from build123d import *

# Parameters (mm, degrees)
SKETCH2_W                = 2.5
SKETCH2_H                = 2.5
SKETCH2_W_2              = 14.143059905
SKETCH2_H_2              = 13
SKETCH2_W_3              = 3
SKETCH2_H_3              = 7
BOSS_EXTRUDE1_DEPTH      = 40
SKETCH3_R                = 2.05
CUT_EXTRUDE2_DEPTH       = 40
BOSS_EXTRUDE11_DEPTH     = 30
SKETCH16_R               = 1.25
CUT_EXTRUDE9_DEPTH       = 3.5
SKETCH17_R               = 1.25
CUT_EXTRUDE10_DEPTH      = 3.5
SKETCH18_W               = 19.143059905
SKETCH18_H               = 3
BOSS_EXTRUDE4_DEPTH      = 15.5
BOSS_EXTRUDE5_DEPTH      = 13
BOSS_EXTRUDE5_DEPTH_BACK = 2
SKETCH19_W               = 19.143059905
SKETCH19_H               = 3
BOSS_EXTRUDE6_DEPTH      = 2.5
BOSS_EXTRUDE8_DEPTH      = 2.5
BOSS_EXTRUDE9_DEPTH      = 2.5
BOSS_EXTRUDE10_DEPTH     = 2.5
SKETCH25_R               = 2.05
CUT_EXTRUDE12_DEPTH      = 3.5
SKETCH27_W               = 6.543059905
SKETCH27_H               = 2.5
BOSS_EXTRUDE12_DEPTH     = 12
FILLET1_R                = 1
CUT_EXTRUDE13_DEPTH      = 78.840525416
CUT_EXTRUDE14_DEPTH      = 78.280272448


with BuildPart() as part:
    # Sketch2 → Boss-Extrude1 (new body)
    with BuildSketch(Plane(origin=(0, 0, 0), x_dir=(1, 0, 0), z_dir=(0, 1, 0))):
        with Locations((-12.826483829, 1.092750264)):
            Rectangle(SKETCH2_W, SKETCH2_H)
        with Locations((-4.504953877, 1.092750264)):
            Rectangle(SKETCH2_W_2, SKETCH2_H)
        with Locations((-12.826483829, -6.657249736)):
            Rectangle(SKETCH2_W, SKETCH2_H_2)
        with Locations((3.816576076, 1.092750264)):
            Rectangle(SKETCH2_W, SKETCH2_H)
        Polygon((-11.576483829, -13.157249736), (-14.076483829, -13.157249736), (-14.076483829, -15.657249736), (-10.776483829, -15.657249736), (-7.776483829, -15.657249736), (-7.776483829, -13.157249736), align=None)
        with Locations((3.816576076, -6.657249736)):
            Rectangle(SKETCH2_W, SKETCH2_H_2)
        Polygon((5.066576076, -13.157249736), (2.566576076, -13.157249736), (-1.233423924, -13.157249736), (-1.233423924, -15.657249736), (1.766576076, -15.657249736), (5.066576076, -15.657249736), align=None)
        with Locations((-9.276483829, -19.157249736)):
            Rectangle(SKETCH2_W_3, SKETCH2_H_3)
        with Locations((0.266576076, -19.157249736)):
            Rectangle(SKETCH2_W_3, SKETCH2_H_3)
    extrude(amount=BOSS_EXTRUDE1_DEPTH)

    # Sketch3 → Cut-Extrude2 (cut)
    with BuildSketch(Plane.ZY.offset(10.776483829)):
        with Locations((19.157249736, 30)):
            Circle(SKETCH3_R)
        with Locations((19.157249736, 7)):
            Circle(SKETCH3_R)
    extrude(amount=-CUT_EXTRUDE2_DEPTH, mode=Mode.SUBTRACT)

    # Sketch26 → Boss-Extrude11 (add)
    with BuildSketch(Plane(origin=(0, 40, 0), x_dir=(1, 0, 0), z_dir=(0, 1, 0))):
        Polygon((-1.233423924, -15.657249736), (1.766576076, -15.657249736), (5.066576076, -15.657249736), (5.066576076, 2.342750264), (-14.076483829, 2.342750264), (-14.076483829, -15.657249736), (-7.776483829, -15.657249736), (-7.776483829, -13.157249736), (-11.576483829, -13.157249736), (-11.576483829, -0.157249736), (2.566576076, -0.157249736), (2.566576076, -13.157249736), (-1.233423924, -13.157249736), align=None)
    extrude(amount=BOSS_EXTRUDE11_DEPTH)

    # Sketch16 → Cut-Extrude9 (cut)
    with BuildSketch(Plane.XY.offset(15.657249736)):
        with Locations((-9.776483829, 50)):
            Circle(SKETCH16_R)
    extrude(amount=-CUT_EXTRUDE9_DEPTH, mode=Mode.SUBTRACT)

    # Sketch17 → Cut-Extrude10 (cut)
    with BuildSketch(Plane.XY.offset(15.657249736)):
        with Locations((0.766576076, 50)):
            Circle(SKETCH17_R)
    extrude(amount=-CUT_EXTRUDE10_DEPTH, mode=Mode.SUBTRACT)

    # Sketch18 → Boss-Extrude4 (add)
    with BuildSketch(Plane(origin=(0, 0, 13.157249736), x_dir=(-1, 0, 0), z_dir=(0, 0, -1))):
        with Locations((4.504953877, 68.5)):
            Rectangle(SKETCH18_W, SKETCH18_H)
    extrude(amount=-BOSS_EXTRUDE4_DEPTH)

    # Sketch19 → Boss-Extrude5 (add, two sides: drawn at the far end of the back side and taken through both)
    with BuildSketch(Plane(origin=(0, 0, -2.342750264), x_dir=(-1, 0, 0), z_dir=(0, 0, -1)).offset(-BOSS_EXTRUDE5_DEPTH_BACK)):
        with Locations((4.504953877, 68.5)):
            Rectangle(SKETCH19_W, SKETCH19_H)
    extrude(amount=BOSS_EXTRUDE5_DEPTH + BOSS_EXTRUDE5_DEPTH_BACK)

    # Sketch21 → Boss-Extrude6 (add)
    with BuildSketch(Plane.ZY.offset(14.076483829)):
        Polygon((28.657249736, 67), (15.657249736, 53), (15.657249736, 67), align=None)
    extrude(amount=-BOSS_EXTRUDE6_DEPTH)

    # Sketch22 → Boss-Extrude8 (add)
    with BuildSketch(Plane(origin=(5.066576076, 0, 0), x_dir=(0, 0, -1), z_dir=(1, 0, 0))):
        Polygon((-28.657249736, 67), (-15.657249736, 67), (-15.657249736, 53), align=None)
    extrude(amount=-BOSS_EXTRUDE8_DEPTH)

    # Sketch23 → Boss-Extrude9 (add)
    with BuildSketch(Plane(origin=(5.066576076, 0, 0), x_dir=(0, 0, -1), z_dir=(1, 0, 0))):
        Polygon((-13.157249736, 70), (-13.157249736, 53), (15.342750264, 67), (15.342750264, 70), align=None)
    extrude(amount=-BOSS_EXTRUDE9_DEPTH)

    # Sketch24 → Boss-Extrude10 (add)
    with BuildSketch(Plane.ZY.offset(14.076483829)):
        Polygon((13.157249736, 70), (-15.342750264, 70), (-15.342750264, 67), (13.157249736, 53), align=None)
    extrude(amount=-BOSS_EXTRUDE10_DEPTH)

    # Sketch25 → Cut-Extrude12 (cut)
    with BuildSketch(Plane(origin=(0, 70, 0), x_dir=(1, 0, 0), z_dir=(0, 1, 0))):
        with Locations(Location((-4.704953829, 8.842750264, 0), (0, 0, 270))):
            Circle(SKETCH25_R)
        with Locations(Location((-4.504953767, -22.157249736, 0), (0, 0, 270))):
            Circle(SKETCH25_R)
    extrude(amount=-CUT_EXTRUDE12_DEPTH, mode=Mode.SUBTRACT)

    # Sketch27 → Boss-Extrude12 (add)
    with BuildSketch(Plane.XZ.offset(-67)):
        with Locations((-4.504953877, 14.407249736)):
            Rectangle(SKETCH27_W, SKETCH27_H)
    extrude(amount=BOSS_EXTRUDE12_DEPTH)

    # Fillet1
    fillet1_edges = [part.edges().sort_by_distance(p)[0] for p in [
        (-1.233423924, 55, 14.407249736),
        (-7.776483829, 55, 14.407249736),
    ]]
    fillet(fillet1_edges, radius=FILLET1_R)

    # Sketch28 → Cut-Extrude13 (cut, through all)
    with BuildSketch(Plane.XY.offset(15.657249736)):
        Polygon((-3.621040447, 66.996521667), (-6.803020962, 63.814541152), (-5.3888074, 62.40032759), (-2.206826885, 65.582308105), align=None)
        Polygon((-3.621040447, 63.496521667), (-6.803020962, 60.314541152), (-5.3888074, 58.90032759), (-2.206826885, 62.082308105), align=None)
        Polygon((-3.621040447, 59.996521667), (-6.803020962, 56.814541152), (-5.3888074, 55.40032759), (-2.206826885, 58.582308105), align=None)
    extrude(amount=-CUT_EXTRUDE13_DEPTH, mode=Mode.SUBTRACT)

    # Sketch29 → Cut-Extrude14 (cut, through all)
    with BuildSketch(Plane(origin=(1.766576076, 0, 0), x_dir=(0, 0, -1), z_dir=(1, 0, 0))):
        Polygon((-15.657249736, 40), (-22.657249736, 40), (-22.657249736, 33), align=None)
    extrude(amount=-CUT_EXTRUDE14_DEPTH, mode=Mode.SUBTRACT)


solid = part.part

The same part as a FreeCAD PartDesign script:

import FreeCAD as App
import Part
import Sketcher

V = App.Vector
Q = App.Units.Quantity


def edges_at(feature, points):
    """Names of the edges that pass closest to the given points."""
    edges = feature.Shape.Edges
    near = lambda p: min(range(len(edges)), key=lambda i: edges[i].distToShape(Part.Vertex(*p))[0])
    return sorted({f"Edge{near(p) + 1}" for p in points})


def add_polygon(sketch, points):
    """Adds a closed chain of lines whose ends are joined by coincident constraints."""
    first, n = sketch.GeometryCount, len(points)
    for a, b in zip(points, points[1:] + points[:1]):
        sketch.addGeometry(Part.LineSegment(App.Vector(*a, 0), App.Vector(*b, 0)), False)
    for i in range(n):
        sketch.addConstraint(Sketcher.Constraint("Coincident", first + i, 2, first + (i + 1) % n, 1))

doc = App.newDocument("Part")
body = doc.addObject("PartDesign::Body", "Body")

# Sketch on XZ plane
sketch1 = body.newObject("Sketcher::SketchObject", "Sketch")
sketch1.AttachmentSupport = (doc.getObject("XZ_Plane"), [""])
sketch1.MapMode = "FlatFace"
add_polygon(sketch1, [(-14.1, -2.3), (-14.1, 15.7), (-10.8, 15.7), (-10.8, 22.7), (-7.8, 22.7), (-7.8, 13.2), (-11.6, 13.2), (-11.6, 0.2), (2.6, 0.2), (2.6, 13.2), (-1.2, 13.2), (-1.2, 22.7), (1.8, 22.7), (1.8, 15.7), (5.1, 15.7), (5.1, -2.3)])  # lines 0-15
sketch1.addConstraint([
    Sketcher.Constraint("Vertical", 0),
    Sketcher.Constraint("Horizontal", 1),
    Sketcher.Constraint("Vertical", 2),
    Sketcher.Constraint("Horizontal", 3),
    Sketcher.Constraint("Vertical", 4),
    Sketcher.Constraint("Horizontal", 5),
    Sketcher.Constraint("Vertical", 6),
    Sketcher.Constraint("Horizontal", 7),
    Sketcher.Constraint("Vertical", 8),
    Sketcher.Constraint("Horizontal", 9),
    Sketcher.Constraint("Vertical", 10),
    Sketcher.Constraint("Horizontal", 11),
    Sketcher.Constraint("Vertical", 12),
    Sketcher.Constraint("Horizontal", 13),
    Sketcher.Constraint("Vertical", 14),
    Sketcher.Constraint("Horizontal", 15),
    Sketcher.Constraint("Horizontal", 5, 2, 8, 2),
    Sketcher.Constraint("Horizontal", 3, 2, 10, 2),
    Sketcher.Constraint("Horizontal", 1, 2, 12, 2),
    Sketcher.Constraint("Equal", 5, 9),
    Sketcher.Constraint("Equal", 3, 11),
    Sketcher.Constraint("Equal", 1, 13),
    Sketcher.Constraint("DistanceX", 3, 1, 3, 2, 3.0),
    Sketcher.Constraint("DistanceY", 0, 1, 0, 2, 18.0),
    Sketcher.Constraint("DistanceY", 2, 1, 2, 2, 7.0),
    Sketcher.Constraint("DistanceY", 6, 2, 6, 1, 13.0),
    Sketcher.Constraint("DistanceX", 1, 1, 1, 2, 3.3),
    Sketcher.Constraint("DistanceX", 5, 2, 5, 1, 3.8),
    Sketcher.Constraint("DistanceY", 4, 2, 4, 1, 9.5),
    Sketcher.Constraint("DistanceX", 7, 1, 7, 2, 14.14306),
    Sketcher.Constraint("DistanceY", -1, 1, 0, 2, 15.65725),
    Sketcher.Constraint("DistanceX", 0, 2, -1, 1, 14.076484),
])
pad1 = body.newObject("PartDesign::Pad", "Pad")
pad1.Profile = sketch1
pad1.Length = 40
pad1.Reversed = True

# Sketch on YZ plane
sketch2 = body.newObject("Sketcher::SketchObject", "Sketch001")
sketch2.AttachmentSupport = (doc.getObject("YZ_Plane"), [""])
sketch2.MapMode = "FlatFace"
sketch2.AttachmentOffset = App.Placement(V(0, 0, -10.776484), App.Rotation())
sketch2.addGeometry([
    Part.Circle(V(30, 19.2, 0), V(0, 0, 1), 2),
    Part.Circle(V(7, 19.2, 0), V(0, 0, 1), 2),
], False)
sketch2.addConstraint([
    Sketcher.Constraint("Equal", 0, 1),
    Sketcher.Constraint("Horizontal", 0, 3, 1, 3),
    Sketcher.Constraint("Diameter", 0, 4.1),
    Sketcher.Constraint("DistanceX", -1, 1, 0, 3, 30.0),
    Sketcher.Constraint("DistanceX", -1, 1, 1, 3, 7.0),
    Sketcher.Constraint("DistanceY", -1, 1, 0, 3, 19.15725),
])
pocket1 = body.newObject("PartDesign::Pocket", "Pocket")
pocket1.Profile = sketch2
pocket1.Length = 40
pocket1.Reversed = True

# Sketch on XZ plane
sketch3 = body.newObject("Sketcher::SketchObject", "Sketch002")
sketch3.AttachmentSupport = (doc.getObject("XZ_Plane"), [""])
sketch3.MapMode = "FlatFace"
sketch3.AttachmentOffset = App.Placement(V(0, 0, -40), App.Rotation())
add_polygon(sketch3, [(-1.2, 15.7), (5.1, 15.7), (5.1, -2.3), (-14.1, -2.3), (-14.1, 15.7), (-7.8, 15.7), (-7.8, 13.2), (-11.6, 13.2), (-11.6, 0.2), (2.6, 0.2), (2.6, 13.2), (-1.2, 13.2)])  # lines 0-11
sketch3.addConstraint([
    Sketcher.Constraint("Horizontal", 0),
    Sketcher.Constraint("Vertical", 1),
    Sketcher.Constraint("Horizontal", 2),
    Sketcher.Constraint("Vertical", 3),
    Sketcher.Constraint("Horizontal", 4),
    Sketcher.Constraint("Vertical", 5),
    Sketcher.Constraint("Horizontal", 6),
    Sketcher.Constraint("Vertical", 7),
    Sketcher.Constraint("Horizontal", 8),
    Sketcher.Constraint("Vertical", 9),
    Sketcher.Constraint("Horizontal", 10),
    Sketcher.Constraint("Vertical", 11),
    Sketcher.Constraint("Horizontal", 0, 2, 3, 2),
    Sketcher.Constraint("Horizontal", 6, 2, 9, 2),
    Sketcher.Constraint("Equal", 0, 4),
    Sketcher.Constraint("Equal", 6, 10),
    Sketcher.Constraint("DistanceY", 1, 2, 1, 1, 18.0),
    Sketcher.Constraint("DistanceY", 7, 2, 7, 1, 13.0),
    Sketcher.Constraint("DistanceX", 0, 1, 0, 2, 6.3),
    Sketcher.Constraint("DistanceX", 6, 2, 6, 1, 3.8),
    Sketcher.Constraint("DistanceY", 5, 2, 5, 1, 2.5),
    Sketcher.Constraint("DistanceX", 2, 2, 2, 1, 19.14306),
    Sketcher.Constraint("DistanceY", -1, 1, 0, 2, 15.65725),
    Sketcher.Constraint("DistanceX", -1, 1, 0, 2, 5.066576),
])
pad2 = body.newObject("PartDesign::Pad", "Pad001")
pad2.Profile = sketch3
pad2.Length = 30
pad2.Reversed = True

# Sketch on XY plane
sketch4 = body.newObject("Sketcher::SketchObject", "Sketch003")
sketch4.AttachmentSupport = (doc.getObject("XY_Plane"), [""])
sketch4.MapMode = "FlatFace"
sketch4.AttachmentOffset = App.Placement(V(0, 0, 15.65725), App.Rotation())
sketch4.addGeometry(Part.Circle(V(-9.8, 50, 0), V(0, 0, 1), 1.2), False)
sketch4.addConstraint([
    Sketcher.Constraint("Diameter", 0, 2.5),
    Sketcher.Constraint("DistanceY", -1, 1, 0, 3, 50.0),
    Sketcher.Constraint("DistanceX", 0, 3, -1, 1, 9.776484),
])
pocket2 = body.newObject("PartDesign::Pocket", "Pocket001")
pocket2.Profile = sketch4
pocket2.Length = 3.5

# Sketch on XY plane
sketch5 = body.newObject("Sketcher::SketchObject", "Sketch004")
sketch5.AttachmentSupport = (doc.getObject("XY_Plane"), [""])
sketch5.MapMode = "FlatFace"
sketch5.AttachmentOffset = App.Placement(V(0, 0, 15.65725), App.Rotation())
sketch5.addGeometry(Part.Circle(V(0.8, 50, 0), V(0, 0, 1), 1.2), False)
sketch5.addConstraint([
    Sketcher.Constraint("Diameter", 0, 2.5),
    Sketcher.Constraint("DistanceY", -1, 1, 0, 3, 50.0),
    Sketcher.Constraint("DistanceX", -1, 1, 0, 3, 0.766576),
])
pocket3 = body.newObject("PartDesign::Pocket", "Pocket002")
pocket3.Profile = sketch5
pocket3.Length = 3.5

# Sketch on XY plane
sketch6 = body.newObject("Sketcher::SketchObject", "Sketch005")
sketch6.AttachmentSupport = (doc.getObject("XY_Plane"), [""])
sketch6.MapMode = "FlatFace"
sketch6.AttachmentOffset = App.Placement(V(0, 0, 13.15725), App.Rotation())
add_polygon(sketch6, [(5.1, 70), (5.1, 67), (-14.1, 67), (-14.1, 70)])  # lines 0-3
sketch6.addConstraint([
    Sketcher.Constraint("Vertical", 0),
    Sketcher.Constraint("Horizontal", 1),
    Sketcher.Constraint("Vertical", 2),
    Sketcher.Constraint("Horizontal", 3),
    Sketcher.Constraint("DistanceY", 0, 2, 0, 1, 3.0),
    Sketcher.Constraint("DistanceY", -1, 1, 0, 2, 67.0),
    Sketcher.Constraint("DistanceX", 1, 2, 1, 1, 19.14306),
    Sketcher.Constraint("DistanceX", -1, 1, 0, 2, 5.066576),
])
pad3 = body.newObject("PartDesign::Pad", "Pad002")
pad3.Profile = sketch6
pad3.Length = 15.5

# Sketch on XY plane
sketch7 = body.newObject("Sketcher::SketchObject", "Sketch006")
sketch7.AttachmentSupport = (doc.getObject("XY_Plane"), [""])
sketch7.MapMode = "FlatFace"
sketch7.AttachmentOffset = App.Placement(V(0, 0, -2.34275), App.Rotation())
add_polygon(sketch7, [(5.1, 70), (5.1, 67), (-14.1, 67), (-14.1, 70)])  # lines 0-3
sketch7.addConstraint([
    Sketcher.Constraint("Vertical", 0),
    Sketcher.Constraint("Horizontal", 1),
    Sketcher.Constraint("Vertical", 2),
    Sketcher.Constraint("Horizontal", 3),
    Sketcher.Constraint("DistanceY", 0, 2, 0, 1, 3.0),
    Sketcher.Constraint("DistanceY", -1, 1, 0, 2, 67.0),
    Sketcher.Constraint("DistanceX", 1, 2, 1, 1, 19.14306),
    Sketcher.Constraint("DistanceX", -1, 1, 0, 2, 5.066576),
])
pad4 = body.newObject("PartDesign::Pad", "Pad003")
pad4.Profile = sketch7
pad4.Type = "TwoLengths"
pad4.Length = 13
pad4.Length2 = 2
pad4.Reversed = True

# Sketch on YZ plane
sketch8 = body.newObject("Sketcher::SketchObject", "Sketch007")
sketch8.AttachmentSupport = (doc.getObject("YZ_Plane"), [""])
sketch8.MapMode = "FlatFace"
sketch8.AttachmentOffset = App.Placement(V(0, 0, -14.076484), App.Rotation())
add_polygon(sketch8, [(53, 16), (67, 29), (67, 16)])  # lines 0-2
sketch8.addConstraint([
    Sketcher.Constraint("Vertical", 1),
    Sketcher.Constraint("Horizontal", 2),
    Sketcher.Constraint("DistanceX", 2, 2, 2, 1, 14.0),
    Sketcher.Constraint("DistanceY", 1, 2, 1, 1, 13.0),
    Sketcher.Constraint("DistanceX", -1, 1, 0, 2, 67.0),
    Sketcher.Constraint("DistanceY", -1, 1, 0, 2, 28.65725),
])
pad5 = body.newObject("PartDesign::Pad", "Pad004")
pad5.Profile = sketch8
pad5.Length = 2.5

# Sketch on YZ plane
sketch9 = body.newObject("Sketcher::SketchObject", "Sketch008")
sketch9.AttachmentSupport = (doc.getObject("YZ_Plane"), [""])
sketch9.MapMode = "FlatFace"
sketch9.AttachmentOffset = App.Placement(V(0, 0, 5.066576), App.Rotation())
add_polygon(sketch9, [(67, 16), (67, 29), (53, 16)])  # lines 0-2
sketch9.addConstraint([
    Sketcher.Constraint("Vertical", 0),
    Sketcher.Constraint("Horizontal", 2),
    Sketcher.Constraint("DistanceX", 2, 1, 2, 2, 14.0),
    Sketcher.Constraint("DistanceY", 0, 1, 0, 2, 13.0),
    Sketcher.Constraint("DistanceX", -1, 1, 0, 2, 67.0),
    Sketcher.Constraint("DistanceY", -1, 1, 0, 2, 28.65725),
])
pad6 = body.newObject("PartDesign::Pad", "Pad005")
pad6.Profile = sketch9
pad6.Length = 2.5
pad6.Reversed = True

# Sketch on YZ plane
sketch10 = body.newObject("Sketcher::SketchObject", "Sketch009")
sketch10.AttachmentSupport = (doc.getObject("YZ_Plane"), [""])
sketch10.MapMode = "FlatFace"
sketch10.AttachmentOffset = App.Placement(V(0, 0, 5.066576), App.Rotation())
add_polygon(sketch10, [(70, 13.2), (53, 13.2), (67, -15.3), (70, -15.3)])  # lines 0-3
sketch10.addConstraint([
    Sketcher.Constraint("Horizontal", 0),
    Sketcher.Constraint("Horizontal", 2),
    Sketcher.Constraint("Vertical", 3),
    Sketcher.Constraint("DistanceX", 0, 2, 0, 1, 17.0),
    Sketcher.Constraint("DistanceX", 2, 1, 2, 2, 3.0),
    Sketcher.Constraint("DistanceY", 3, 1, 3, 2, 28.5),
    Sketcher.Constraint("DistanceX", -1, 1, 0, 2, 53.0),
    Sketcher.Constraint("DistanceY", -1, 1, 0, 2, 13.15725),
])
pad7 = body.newObject("PartDesign::Pad", "Pad006")
pad7.Profile = sketch10
pad7.Length = 2.5
pad7.Reversed = True

# Sketch on YZ plane
sketch11 = body.newObject("Sketcher::SketchObject", "Sketch010")
sketch11.AttachmentSupport = (doc.getObject("YZ_Plane"), [""])
sketch11.MapMode = "FlatFace"
sketch11.AttachmentOffset = App.Placement(V(0, 0, -14.076484), App.Rotation())
add_polygon(sketch11, [(70, 13.2), (70, -15.3), (67, -15.3), (53, 13.2)])  # lines 0-3
sketch11.addConstraint([
    Sketcher.Constraint("Vertical", 0),
    Sketcher.Constraint("Horizontal", 1),
    Sketcher.Constraint("Horizontal", 3),
    Sketcher.Constraint("DistanceX", 1, 2, 1, 1, 3.0),
    Sketcher.Constraint("DistanceX", 3, 1, 3, 2, 17.0),
    Sketcher.Constraint("DistanceY", 0, 2, 0, 1, 28.5),
    Sketcher.Constraint("DistanceX", -1, 1, 0, 2, 70.0),
    Sketcher.Constraint("DistanceY", 0, 2, -1, 1, 15.34275),
])
pad8 = body.newObject("PartDesign::Pad", "Pad007")
pad8.Profile = sketch11
pad8.Length = 2.5

# Sketch on XZ plane
sketch12 = body.newObject("Sketcher::SketchObject", "Sketch011")
sketch12.AttachmentSupport = (doc.getObject("XZ_Plane"), [""])
sketch12.MapMode = "FlatFace"
sketch12.AttachmentOffset = App.Placement(V(0, 0, -70), App.Rotation())
sketch12.addGeometry([
    Part.Circle(V(-4.7, -8.8, 0), V(0, 0, 1), 2),
    Part.Circle(V(-4.5, 22.2, 0), V(0, 0, 1), 2),
], False)
sketch12.addConstraint([
    Sketcher.Constraint("Equal", 0, 1),
    Sketcher.Constraint("Diameter", 0, 4.1),
    Sketcher.Constraint("DistanceY", 0, 3, 1, 3, 31.0),
    Sketcher.Constraint("DistanceX", 0, 3, 1, 3, 0.2),
    Sketcher.Constraint("DistanceY", 0, 3, -1, 1, 8.84275),
    Sketcher.Constraint("DistanceX", 0, 3, -1, 1, 4.704954),
])
pocket4 = body.newObject("PartDesign::Pocket", "Pocket003")
pocket4.Profile = sketch12
pocket4.Length = 3.5
pocket4.Reversed = True

# Sketch on XZ plane
sketch13 = body.newObject("Sketcher::SketchObject", "Sketch012")
sketch13.AttachmentSupport = (doc.getObject("XZ_Plane"), [""])
sketch13.MapMode = "FlatFace"
sketch13.AttachmentOffset = App.Placement(V(0, 0, -67), App.Rotation())
add_polygon(sketch13, [(-7.8, 15.7), (-7.8, 13.2), (-1.2, 13.2), (-1.2, 15.7)])  # lines 0-3
sketch13.addConstraint([
    Sketcher.Constraint("Vertical", 0),
    Sketcher.Constraint("Horizontal", 1),
    Sketcher.Constraint("Vertical", 2),
    Sketcher.Constraint("Horizontal", 3),
    Sketcher.Constraint("DistanceY", 0, 2, 0, 1, 2.5),
    Sketcher.Constraint("DistanceX", 1, 1, 1, 2, 6.54306),
    Sketcher.Constraint("DistanceY", -1, 1, 0, 2, 13.15725),
    Sketcher.Constraint("DistanceX", 0, 2, -1, 1, 7.776484),
])
pad9 = body.newObject("PartDesign::Pad", "Pad008")
pad9.Profile = sketch13
pad9.Length = 12
doc.recompute()

fillet = body.newObject("PartDesign::Fillet", "Fillet")
fillet.Base = (pad9, edges_at(pad9, [(-1.233, 55, 14.407), (-7.776, 55, 14.407)]))
fillet.Radius = 1

# Sketch on XY plane
sketch14 = body.newObject("Sketcher::SketchObject", "Sketch013")
sketch14.AttachmentSupport = (doc.getObject("XY_Plane"), [""])
sketch14.MapMode = "FlatFace"
sketch14.AttachmentOffset = App.Placement(V(0, 0, 15.65725), App.Rotation())
add_polygon(sketch14, [(-3.6, 67), (-6.8, 63.8), (-5.4, 62.4), (-2.2, 65.6)])  # lines 0-3
add_polygon(sketch14, [(-3.6, 63.5), (-6.8, 60.3), (-5.4, 58.9), (-2.2, 62.1)])  # lines 4-7
add_polygon(sketch14, [(-3.6, 60), (-6.8, 56.8), (-5.4, 55.4), (-2.2, 58.6)])  # lines 8-11
sketch14.addConstraint([
    Sketcher.Constraint("Perpendicular", 0, 1),
    Sketcher.Constraint("Perpendicular", 1, 2),
    Sketcher.Constraint("Perpendicular", 2, 3),
    Sketcher.Constraint("Perpendicular", 3, 4),
    Sketcher.Constraint("Perpendicular", 4, 5),
    Sketcher.Constraint("Perpendicular", 5, 6),
    Sketcher.Constraint("Perpendicular", 6, 7),
    Sketcher.Constraint("Perpendicular", 7, 8),
    Sketcher.Constraint("Perpendicular", 8, 9),
    Sketcher.Constraint("Perpendicular", 9, 10),
    Sketcher.Constraint("Perpendicular", 10, 11),
    Sketcher.Constraint("Vertical", 0, 2, 4, 2),
    Sketcher.Constraint("Vertical", 1, 2, 5, 2),
    Sketcher.Constraint("Vertical", 2, 2, 6, 2),
    Sketcher.Constraint("Vertical", 4, 2, 8, 2),
    Sketcher.Constraint("Vertical", 5, 2, 9, 2),
    Sketcher.Constraint("Vertical", 6, 2, 10, 2),
    Sketcher.Constraint("Angle", 0, Q("-135 deg")),
    Sketcher.Constraint("Distance", 1, 2.0),
    Sketcher.Constraint("DistanceY", 8, 2, 0, 2, 7.0),
    Sketcher.Constraint("Distance", 0, 4.5),
    Sketcher.Constraint("DistanceY", 4, 2, 0, 2, 3.5),
    Sketcher.Constraint("DistanceX", 0, 2, -1, 1, 6.803021),
    Sketcher.Constraint("DistanceY", -1, 1, 0, 2, 63.814541),
])
pocket5 = body.newObject("PartDesign::Pocket", "Pocket004")
pocket5.Profile = sketch14
pocket5.Type = "ThroughAll"

# Sketch on YZ plane
sketch15 = body.newObject("Sketcher::SketchObject", "Sketch014")
sketch15.AttachmentSupport = (doc.getObject("YZ_Plane"), [""])
sketch15.MapMode = "FlatFace"
sketch15.AttachmentOffset = App.Placement(V(0, 0, 1.766576), App.Rotation())
add_polygon(sketch15, [(40, 16), (40, 23), (33, 23)])  # lines 0-2
sketch15.addConstraint([
    Sketcher.Constraint("Vertical", 0),
    Sketcher.Constraint("Horizontal", 1),
    Sketcher.Constraint("Equal", 1, 0),
    Sketcher.Constraint("DistanceX", 1, 2, 1, 1, 7.0),
    Sketcher.Constraint("DistanceX", -1, 1, 0, 2, 40.0),
    Sketcher.Constraint("DistanceY", -1, 1, 0, 2, 22.65725),
])
pocket6 = body.newObject("PartDesign::Pocket", "Pocket005")
pocket6.Profile = sketch15
pocket6.Type = "ThroughAll"

doc.recompute()
